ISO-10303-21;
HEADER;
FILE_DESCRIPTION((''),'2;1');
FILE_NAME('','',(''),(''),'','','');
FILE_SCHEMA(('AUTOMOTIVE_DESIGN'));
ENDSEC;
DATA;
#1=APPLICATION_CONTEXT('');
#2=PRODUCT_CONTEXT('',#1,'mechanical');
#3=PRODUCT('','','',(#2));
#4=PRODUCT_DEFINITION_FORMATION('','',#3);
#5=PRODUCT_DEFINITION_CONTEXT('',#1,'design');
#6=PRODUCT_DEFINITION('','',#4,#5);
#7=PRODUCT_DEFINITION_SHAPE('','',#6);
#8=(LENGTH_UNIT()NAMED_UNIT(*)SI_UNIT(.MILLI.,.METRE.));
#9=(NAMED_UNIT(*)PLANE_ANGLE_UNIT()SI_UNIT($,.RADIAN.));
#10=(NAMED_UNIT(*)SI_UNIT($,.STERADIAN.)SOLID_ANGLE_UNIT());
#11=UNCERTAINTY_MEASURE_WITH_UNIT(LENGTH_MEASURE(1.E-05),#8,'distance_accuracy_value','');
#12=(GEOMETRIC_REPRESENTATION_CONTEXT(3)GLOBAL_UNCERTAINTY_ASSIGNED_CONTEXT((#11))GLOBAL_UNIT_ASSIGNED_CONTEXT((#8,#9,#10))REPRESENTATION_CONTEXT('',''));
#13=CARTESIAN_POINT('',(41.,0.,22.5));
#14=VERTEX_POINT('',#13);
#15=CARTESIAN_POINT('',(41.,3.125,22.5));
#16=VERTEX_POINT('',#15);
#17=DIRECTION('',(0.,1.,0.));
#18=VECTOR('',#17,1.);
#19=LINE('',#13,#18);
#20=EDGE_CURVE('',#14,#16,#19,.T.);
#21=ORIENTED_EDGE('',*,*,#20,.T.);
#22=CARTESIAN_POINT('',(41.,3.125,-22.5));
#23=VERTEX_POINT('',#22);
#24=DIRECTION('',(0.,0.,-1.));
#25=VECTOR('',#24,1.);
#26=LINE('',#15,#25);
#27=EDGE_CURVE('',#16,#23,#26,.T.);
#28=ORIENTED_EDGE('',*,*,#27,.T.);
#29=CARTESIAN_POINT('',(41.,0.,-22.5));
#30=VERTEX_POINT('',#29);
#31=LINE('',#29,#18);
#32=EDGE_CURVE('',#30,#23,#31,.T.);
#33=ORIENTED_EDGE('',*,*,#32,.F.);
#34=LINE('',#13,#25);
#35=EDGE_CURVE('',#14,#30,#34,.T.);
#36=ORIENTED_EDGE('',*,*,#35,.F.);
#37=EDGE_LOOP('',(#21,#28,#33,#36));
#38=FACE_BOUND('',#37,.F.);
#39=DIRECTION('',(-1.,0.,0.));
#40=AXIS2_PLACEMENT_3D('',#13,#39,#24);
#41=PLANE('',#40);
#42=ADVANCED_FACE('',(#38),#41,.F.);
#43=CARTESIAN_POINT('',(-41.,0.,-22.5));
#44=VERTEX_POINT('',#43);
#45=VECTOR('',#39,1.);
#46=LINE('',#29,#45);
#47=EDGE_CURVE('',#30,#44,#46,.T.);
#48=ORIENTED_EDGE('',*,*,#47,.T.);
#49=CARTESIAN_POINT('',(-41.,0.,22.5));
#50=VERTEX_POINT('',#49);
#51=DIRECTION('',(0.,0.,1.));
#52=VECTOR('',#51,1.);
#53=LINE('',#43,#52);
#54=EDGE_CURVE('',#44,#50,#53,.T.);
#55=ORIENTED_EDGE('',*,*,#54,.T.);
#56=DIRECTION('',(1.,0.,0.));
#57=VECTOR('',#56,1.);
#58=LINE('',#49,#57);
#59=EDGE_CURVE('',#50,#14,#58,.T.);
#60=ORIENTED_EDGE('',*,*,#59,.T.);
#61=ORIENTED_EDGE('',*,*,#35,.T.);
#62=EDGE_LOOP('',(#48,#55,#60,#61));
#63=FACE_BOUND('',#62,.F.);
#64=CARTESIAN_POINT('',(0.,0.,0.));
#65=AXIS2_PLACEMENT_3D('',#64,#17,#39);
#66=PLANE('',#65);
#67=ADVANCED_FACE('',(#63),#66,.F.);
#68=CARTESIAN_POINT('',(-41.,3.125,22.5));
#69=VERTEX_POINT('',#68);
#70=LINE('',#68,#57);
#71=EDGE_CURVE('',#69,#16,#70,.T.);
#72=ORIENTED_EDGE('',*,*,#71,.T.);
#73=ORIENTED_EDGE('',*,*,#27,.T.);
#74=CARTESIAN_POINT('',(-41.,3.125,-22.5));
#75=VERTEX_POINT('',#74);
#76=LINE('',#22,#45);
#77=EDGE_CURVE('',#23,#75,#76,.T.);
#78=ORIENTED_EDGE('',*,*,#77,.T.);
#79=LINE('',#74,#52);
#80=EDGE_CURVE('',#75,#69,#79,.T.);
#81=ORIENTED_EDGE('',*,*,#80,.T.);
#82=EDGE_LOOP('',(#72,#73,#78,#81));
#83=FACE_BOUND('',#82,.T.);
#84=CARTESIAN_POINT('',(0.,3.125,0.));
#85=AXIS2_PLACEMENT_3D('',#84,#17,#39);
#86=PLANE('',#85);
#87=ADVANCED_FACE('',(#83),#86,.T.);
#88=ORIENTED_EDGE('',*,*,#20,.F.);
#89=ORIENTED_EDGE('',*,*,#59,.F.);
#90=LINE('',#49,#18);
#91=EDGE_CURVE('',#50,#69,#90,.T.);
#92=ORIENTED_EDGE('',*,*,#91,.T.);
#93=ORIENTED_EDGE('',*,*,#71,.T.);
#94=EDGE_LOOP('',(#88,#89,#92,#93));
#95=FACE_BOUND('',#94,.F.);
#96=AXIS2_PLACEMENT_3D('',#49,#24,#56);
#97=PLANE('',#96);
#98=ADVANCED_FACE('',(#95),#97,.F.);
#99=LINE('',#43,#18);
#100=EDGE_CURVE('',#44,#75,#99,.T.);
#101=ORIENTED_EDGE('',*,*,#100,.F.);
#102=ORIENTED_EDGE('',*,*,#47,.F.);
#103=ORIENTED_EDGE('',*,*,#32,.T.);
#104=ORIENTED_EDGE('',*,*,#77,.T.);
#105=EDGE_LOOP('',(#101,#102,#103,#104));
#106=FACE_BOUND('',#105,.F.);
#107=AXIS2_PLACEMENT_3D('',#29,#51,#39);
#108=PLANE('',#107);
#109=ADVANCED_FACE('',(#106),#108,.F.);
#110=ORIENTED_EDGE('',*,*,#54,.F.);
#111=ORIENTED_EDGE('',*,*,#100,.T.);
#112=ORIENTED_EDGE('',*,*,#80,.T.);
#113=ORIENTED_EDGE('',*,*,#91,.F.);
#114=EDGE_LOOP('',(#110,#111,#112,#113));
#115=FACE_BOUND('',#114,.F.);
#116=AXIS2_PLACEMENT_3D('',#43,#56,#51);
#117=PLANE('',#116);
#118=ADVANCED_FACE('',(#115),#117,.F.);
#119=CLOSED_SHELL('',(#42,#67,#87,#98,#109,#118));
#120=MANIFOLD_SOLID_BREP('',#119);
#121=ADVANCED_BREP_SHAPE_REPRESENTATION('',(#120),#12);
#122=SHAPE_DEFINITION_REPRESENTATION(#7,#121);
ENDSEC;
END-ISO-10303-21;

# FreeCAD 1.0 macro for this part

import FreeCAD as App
import Part
import Sketcher

V = App.Vector
Q = App.Units.Quantity


def add_polygon(sketch, points):
    """Adds a closed chain of lines whose ends are joined by coincident constraints."""
    first, n = sketch.GeometryCount, len(points)
    for a, b in zip(points, points[1:] + points[:1]):
        sketch.addGeometry(Part.LineSegment(App.Vector(*a, 0), App.Vector(*b, 0)), False)
    for i in range(n):
        sketch.addConstraint(Sketcher.Constraint("Coincident", first + i, 2, first + (i + 1) % n, 1))

doc = App.newDocument("Part")
params = doc.addObject("Spreadsheet::Sheet", "Params")
for row, (alias, value) in enumerate([
    ("sketch1_width", "82 mm"),
    ("sketch1_height", "45 mm"),
    ("pad1_length", "3.125 mm"),
], start=1):
    params.set(f"A{row}", alias)
    params.set(f"B{row}", "=" + value)
    params.setAlias(f"B{row}", alias)

body = doc.addObject("PartDesign::Body", "Body")

sketch1 = body.newObject("Sketcher::SketchObject", "Sketch")
sketch1.AttachmentSupport = (doc.getObject("XZ_Plane"), [""])
sketch1.MapMode = "FlatFace"
add_polygon(sketch1, [(-41, -22.5), (-41, 22.5), (41, 22.5), (41, -22.5)])
sketch1.addConstraint(Sketcher.Constraint("Vertical", 0))
sketch1.addConstraint(Sketcher.Constraint("Horizontal", 1))
sketch1.addConstraint(Sketcher.Constraint("Vertical", 2))
sketch1.addConstraint(Sketcher.Constraint("Horizontal", 3))
sketch1.addConstraint(Sketcher.Constraint("Symmetric", 0, 2, 2, 2, -1, 1))
sketch1.addConstraint(Sketcher.Constraint("DistanceX", 1, 1, 1, 2, Q("82 mm")))
sketch1.addConstraint(Sketcher.Constraint("DistanceY", 0, 1, 0, 2, Q("45 mm")))
sketch1.setExpression("Constraints[9]", "Params.sketch1_width")
sketch1.setExpression("Constraints[10]", "Params.sketch1_height")
pad1 = body.newObject("PartDesign::Pad", "Pad")
pad1.Profile = sketch1
pad1.setExpression("Length", "Params.pad1_length")
pad1.Reversed = True

doc.recompute()
